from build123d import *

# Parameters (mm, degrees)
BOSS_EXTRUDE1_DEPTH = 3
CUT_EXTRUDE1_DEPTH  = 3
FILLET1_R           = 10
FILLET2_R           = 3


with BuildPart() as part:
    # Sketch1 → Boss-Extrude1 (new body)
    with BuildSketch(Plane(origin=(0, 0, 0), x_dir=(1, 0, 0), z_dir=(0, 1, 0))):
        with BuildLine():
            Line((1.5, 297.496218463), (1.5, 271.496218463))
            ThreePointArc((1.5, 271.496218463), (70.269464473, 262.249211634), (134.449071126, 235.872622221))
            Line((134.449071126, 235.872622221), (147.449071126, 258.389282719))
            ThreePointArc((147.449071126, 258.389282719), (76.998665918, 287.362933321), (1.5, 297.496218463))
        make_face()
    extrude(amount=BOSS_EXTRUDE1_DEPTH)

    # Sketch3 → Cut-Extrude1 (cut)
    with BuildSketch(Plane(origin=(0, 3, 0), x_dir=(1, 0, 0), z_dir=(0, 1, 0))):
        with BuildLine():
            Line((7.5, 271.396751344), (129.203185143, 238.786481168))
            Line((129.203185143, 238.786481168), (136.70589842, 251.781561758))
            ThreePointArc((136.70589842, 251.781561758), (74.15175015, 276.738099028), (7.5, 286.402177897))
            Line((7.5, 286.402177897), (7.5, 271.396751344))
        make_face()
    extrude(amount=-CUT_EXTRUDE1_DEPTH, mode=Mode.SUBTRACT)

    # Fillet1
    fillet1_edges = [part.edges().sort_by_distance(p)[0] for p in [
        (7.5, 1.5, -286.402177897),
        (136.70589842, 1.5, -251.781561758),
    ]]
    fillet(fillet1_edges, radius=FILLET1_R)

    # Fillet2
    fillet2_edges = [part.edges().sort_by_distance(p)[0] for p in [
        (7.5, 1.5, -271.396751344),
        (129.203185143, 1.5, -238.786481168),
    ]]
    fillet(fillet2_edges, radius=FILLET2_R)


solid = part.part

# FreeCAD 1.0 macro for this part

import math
import FreeCAD as App
import Part
import Sketcher
from FreeCAD import Vector
Q = App.Units.Quantity


def edges_at(feature, points):
    """Names of the edges that pass closest to the given points."""
    edges = feature.Shape.Edges
    near = lambda p: min(range(len(edges)), key=lambda i: edges[i].distToShape(Part.Vertex(*p))[0])
    return sorted({f"Edge{near(p) + 1}" for p in points})

doc = App.newDocument("Part")
body = doc.addObject("PartDesign::Body", "Body")

sketch1 = body.newObject("Sketcher::SketchObject", "Sketch")
sketch1.AttachmentSupport = (doc.getObject("XZ_Plane"), [""])
sketch1.MapMode = "FlatFace"
sketch1.addGeometry([
    Part.LineSegment(Vector(2, -297, 0), Vector(2, -271, 0)),
    Part.ArcOfCircle(Part.Circle(Vector(0, 0, 0), Vector(0, 0, 1), 272), math.radians(-90), math.radians(-60)),
    Part.LineSegment(Vector(134, -236, 0), Vector(147, -258, 0)),
    Part.ArcOfCircle(Part.Circle(Vector(0, 0, 0), Vector(0, 0, 1), 297), math.radians(-90), math.radians(-60)),
], False)
sketch1.addConstraint([
    Sketcher.Constraint("Coincident", 0, 2, 1, 1),
    Sketcher.Constraint("Coincident", 1, 2, 2, 1),
    Sketcher.Constraint("Coincident", 2, 2, 3, 2),
    Sketcher.Constraint("Coincident", 3, 1, 0, 1),
    Sketcher.Constraint("Vertical", 0),
    Sketcher.Constraint("Coincident", 1, 3, -1, 1),
    Sketcher.Constraint("Coincident", 3, 3, -1, 1),
    Sketcher.Constraint("Radius", 3, Q("297.5 mm")),
    Sketcher.Constraint("DistanceY", 0, 1, 0, 2, Q("26 mm")),
    Sketcher.Constraint("Angle", 2, Q("-60 deg")),
    Sketcher.Constraint("DistanceX", -1, 1, 0, 2, Q("1.5 mm")),
    Sketcher.Constraint("DistanceX", -1, 1, 1, 2, Q("134.449071 mm")),
])
pad1 = body.newObject("PartDesign::Pad", "Pad")
pad1.Profile = sketch1
pad1.Length = 3
pad1.Reversed = True

sketch2 = body.newObject("Sketcher::SketchObject", "Sketch001")
sketch2.AttachmentSupport = (doc.getObject("XZ_Plane"), [""])
sketch2.MapMode = "FlatFace"
sketch2.AttachmentOffset = App.Placement(Vector(0, 0, -3), App.Rotation())
sketch2.addGeometry([
    Part.LineSegment(Vector(8, -271, 0), Vector(129, -239, 0)),
    Part.LineSegment(Vector(129, -239, 0), Vector(137, -252, 0)),
    Part.ArcOfCircle(Part.Circle(Vector(0, 0, 0), Vector(0, 0, 1), 287), math.radians(-88), math.radians(-62)),
    Part.LineSegment(Vector(8, -286, 0), Vector(8, -271, 0)),
], False)
sketch2.addConstraint([
    Sketcher.Constraint("Coincident", 0, 2, 1, 1),
    Sketcher.Constraint("Coincident", 1, 2, 2, 2),
    Sketcher.Constraint("Coincident", 2, 1, 3, 1),
    Sketcher.Constraint("Coincident", 3, 2, 0, 1),
    Sketcher.Constraint("Vertical", 3),
    Sketcher.Constraint("Coincident", 2, 3, -1, 1),
    Sketcher.Constraint("Angle", 0, Q("15 deg")),
    Sketcher.Constraint("Angle", 1, Q("-60 deg")),
    Sketcher.Constraint("DistanceX", -1, 1, 3, 2, Q("7.5 mm")),
    Sketcher.Constraint("Radius", 2, Q("286.500362 mm")),
    Sketcher.Constraint("DistanceX", -1, 1, 1, 2, Q("136.705898 mm")),
    Sketcher.Constraint("Distance", 0, Q("125.996409 mm")),
])
pocket1 = body.newObject("PartDesign::Pocket", "Pocket")
pocket1.Profile = sketch2
pocket1.Length = 3
pocket1.Reversed = True
doc.recompute()

fillet = body.newObject("PartDesign::Fillet", "Fillet")
fillet.Base = (pocket1, edges_at(pocket1, [(7.5, 1.5, -286.402), (136.706, 1.5, -251.782)]))
fillet.Radius = 10
doc.recompute()

fillet2 = body.newObject("PartDesign::Fillet", "Fillet001")
fillet2.Base = (fillet, edges_at(fillet, [(7.5, 1.5, -271.397), (129.203, 1.5, -238.786)]))
fillet2.Radius = 3

doc.recompute()
